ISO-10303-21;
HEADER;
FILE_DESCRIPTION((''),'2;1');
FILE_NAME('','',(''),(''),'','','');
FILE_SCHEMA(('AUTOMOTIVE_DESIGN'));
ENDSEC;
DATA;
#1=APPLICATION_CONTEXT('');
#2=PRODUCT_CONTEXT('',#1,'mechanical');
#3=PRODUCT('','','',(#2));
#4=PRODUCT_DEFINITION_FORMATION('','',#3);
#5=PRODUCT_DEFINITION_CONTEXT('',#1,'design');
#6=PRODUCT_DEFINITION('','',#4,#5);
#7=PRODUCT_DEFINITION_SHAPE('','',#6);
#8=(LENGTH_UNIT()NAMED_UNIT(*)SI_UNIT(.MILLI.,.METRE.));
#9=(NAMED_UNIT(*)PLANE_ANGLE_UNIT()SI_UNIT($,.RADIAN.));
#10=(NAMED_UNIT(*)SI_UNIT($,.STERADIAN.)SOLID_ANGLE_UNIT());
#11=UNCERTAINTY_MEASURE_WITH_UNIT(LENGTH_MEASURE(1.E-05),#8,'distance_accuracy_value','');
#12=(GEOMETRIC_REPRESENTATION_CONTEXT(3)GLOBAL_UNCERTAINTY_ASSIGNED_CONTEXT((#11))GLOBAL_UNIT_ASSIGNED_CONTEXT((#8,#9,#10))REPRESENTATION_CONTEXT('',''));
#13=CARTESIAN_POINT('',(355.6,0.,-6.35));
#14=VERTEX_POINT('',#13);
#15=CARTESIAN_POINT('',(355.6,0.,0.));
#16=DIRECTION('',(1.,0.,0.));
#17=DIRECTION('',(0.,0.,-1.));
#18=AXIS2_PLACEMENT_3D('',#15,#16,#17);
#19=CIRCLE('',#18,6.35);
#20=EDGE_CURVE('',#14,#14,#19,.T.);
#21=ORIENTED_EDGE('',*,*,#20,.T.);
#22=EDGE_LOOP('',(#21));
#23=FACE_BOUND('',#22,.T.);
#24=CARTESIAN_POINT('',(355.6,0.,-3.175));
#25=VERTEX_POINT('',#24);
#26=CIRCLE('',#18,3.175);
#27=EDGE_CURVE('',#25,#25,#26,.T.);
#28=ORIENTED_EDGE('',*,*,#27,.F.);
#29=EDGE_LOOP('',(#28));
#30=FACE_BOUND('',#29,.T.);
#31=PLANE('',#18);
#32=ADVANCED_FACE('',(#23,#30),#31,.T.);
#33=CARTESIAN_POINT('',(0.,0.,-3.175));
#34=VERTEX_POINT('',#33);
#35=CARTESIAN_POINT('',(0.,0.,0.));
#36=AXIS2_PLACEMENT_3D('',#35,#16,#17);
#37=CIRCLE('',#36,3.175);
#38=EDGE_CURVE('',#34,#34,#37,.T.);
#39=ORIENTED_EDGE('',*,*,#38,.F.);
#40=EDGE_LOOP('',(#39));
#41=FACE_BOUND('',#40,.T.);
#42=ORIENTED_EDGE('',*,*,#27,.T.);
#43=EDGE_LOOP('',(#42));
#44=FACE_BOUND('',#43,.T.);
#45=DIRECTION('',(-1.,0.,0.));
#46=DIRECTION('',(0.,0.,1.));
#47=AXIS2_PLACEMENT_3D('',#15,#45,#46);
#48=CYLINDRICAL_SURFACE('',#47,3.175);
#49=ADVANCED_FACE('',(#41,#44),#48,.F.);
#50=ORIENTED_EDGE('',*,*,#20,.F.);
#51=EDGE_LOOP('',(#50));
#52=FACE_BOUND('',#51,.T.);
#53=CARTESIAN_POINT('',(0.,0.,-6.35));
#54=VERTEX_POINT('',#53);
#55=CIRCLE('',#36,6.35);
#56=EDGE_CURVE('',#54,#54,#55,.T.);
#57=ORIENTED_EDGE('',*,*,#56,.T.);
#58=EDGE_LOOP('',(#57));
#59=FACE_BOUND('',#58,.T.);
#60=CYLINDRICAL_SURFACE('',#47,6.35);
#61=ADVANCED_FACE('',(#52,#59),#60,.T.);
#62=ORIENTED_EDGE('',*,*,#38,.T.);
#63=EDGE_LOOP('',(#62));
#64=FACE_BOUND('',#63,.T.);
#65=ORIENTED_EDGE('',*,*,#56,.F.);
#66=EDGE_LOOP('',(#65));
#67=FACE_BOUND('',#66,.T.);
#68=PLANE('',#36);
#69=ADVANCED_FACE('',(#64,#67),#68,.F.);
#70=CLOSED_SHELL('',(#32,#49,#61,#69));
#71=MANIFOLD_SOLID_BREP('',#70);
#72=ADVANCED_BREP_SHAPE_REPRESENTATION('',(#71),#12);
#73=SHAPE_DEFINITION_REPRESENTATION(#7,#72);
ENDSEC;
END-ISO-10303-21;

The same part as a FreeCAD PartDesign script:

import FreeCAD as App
import Part
import Sketcher
Q = App.Units.Quantity

doc = App.newDocument("Part")
params = doc.addObject("Spreadsheet::Sheet", "Params")
for row, (alias, value) in enumerate([
    ("sketch1_diameter", "0.5 in"),
    ("sketch1_diameter2", "0.25 in"),
    ("pad1_length", "14 in"),
], start=1):
    params.set(f"A{row}", alias)
    params.set(f"B{row}", "=" + value)
    params.setAlias(f"B{row}", alias)

body = doc.addObject("PartDesign::Body", "Body")

# Sketch on YZ plane
sketch1 = body.newObject("Sketcher::SketchObject", "Sketch")
sketch1.AttachmentSupport = (doc.getObject("YZ_Plane"), [""])
sketch1.MapMode = "FlatFace"
sketch1.addGeometry([
    Part.Circle(App.Vector(0, 0, 0), App.Vector(0, 0, 1), 6.3),
    Part.Circle(App.Vector(0, 0, 0), App.Vector(0, 0, 1), 3.2),
], False)
sketch1.addConstraint([
    Sketcher.Constraint("Coincident", 0, 3, -1, 1),
    Sketcher.Constraint("Coincident", 1, 3, -1, 1),
    Sketcher.Constraint("Diameter", 0, Q("0.5 in")),
    Sketcher.Constraint("Diameter", 1, Q("0.25 in")),
])
sketch1.setExpression("Constraints[2]", "Params.sketch1_diameter")
sketch1.setExpression("Constraints[3]", "Params.sketch1_diameter2")
pad1 = body.newObject("PartDesign::Pad", "Pad")
pad1.Profile = sketch1
pad1.setExpression("Length", "Params.pad1_length")

doc.recompute()
